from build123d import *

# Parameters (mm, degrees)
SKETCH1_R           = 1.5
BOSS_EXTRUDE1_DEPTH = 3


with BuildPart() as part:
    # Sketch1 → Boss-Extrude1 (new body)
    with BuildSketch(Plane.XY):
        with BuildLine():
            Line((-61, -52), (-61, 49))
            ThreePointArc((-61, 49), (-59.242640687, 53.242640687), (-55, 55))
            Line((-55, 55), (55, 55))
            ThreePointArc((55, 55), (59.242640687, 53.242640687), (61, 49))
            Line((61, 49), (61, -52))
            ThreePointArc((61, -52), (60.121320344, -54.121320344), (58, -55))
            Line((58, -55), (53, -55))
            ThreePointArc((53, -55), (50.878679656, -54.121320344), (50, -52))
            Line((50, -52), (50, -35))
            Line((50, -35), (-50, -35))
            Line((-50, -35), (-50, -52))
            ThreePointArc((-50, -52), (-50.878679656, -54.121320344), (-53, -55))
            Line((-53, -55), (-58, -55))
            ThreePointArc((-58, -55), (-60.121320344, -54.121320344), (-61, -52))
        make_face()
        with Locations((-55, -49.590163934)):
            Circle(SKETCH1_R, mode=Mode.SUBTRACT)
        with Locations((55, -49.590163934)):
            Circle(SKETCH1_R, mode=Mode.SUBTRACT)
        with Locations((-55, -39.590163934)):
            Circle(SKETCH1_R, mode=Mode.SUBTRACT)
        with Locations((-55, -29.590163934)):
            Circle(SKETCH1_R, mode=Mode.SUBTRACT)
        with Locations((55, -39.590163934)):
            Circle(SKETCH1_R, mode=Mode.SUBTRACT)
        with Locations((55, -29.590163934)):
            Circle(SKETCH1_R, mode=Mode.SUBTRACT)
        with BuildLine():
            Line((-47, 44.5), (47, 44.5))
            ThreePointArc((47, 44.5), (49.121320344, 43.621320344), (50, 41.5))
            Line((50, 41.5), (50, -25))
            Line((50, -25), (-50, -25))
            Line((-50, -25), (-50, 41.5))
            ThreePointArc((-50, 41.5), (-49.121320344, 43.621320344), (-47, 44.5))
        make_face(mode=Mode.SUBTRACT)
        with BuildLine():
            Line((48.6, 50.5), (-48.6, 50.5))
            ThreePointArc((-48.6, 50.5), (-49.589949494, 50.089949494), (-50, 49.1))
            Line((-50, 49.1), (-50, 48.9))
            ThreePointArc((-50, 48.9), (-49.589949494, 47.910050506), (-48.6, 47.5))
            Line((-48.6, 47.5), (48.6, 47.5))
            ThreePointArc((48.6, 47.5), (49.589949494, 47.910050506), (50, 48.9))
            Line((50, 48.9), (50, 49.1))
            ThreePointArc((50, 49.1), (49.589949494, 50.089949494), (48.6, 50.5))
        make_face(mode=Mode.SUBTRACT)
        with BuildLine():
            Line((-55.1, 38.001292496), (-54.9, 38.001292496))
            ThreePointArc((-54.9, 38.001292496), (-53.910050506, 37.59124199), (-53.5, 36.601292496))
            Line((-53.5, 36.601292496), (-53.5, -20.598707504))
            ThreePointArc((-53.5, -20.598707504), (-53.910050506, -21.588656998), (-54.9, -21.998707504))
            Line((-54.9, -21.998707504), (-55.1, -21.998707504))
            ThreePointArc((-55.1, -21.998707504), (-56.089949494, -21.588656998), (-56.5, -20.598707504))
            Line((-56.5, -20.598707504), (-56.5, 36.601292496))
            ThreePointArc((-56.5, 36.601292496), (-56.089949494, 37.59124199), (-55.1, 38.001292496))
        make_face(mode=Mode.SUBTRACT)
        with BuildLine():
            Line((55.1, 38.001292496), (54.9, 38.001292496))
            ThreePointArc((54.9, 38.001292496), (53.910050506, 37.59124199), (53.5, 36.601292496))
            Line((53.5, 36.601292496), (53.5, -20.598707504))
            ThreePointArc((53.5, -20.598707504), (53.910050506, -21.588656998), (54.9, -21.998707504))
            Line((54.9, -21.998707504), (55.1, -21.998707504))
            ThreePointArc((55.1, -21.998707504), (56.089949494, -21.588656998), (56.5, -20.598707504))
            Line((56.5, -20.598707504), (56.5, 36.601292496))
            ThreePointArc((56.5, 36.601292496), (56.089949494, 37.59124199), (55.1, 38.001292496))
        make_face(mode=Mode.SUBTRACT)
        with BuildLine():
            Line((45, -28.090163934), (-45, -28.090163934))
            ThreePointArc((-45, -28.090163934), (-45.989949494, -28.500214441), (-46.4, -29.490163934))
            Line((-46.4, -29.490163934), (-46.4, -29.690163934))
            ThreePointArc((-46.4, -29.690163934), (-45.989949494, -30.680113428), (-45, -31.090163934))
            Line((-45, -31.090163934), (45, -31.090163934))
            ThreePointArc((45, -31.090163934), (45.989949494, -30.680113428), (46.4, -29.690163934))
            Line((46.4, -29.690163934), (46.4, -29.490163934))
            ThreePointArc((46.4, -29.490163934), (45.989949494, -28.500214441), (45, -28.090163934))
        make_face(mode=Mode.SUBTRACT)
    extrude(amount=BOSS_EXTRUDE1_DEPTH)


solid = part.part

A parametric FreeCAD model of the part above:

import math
import FreeCAD as App
import Part
import Sketcher
from FreeCAD import Vector
Q = App.Units.Quantity

doc = App.newDocument("Part")
body = doc.addObject("PartDesign::Body", "Body")

# Sketch on XY plane
sketch1 = body.newObject("Sketcher::SketchObject", "Sketch")
sketch1.AttachmentSupport = (doc.getObject("XY_Plane"), [""])
sketch1.MapMode = "FlatFace"
sketch1.addGeometry(Part.LineSegment(Vector(-61, 49, 0), Vector(-61, -52, 0)), False)
sketch1.addGeometry(Part.ArcOfCircle(Part.Circle(Vector(-58, -52, 0), Vector(0, 0, 1), 3), math.radians(180), math.radians(270)), False)
sketch1.addGeometry(Part.LineSegment(Vector(-58, -55, 0), Vector(-53, -55, 0)), False)
sketch1.addGeometry(Part.ArcOfCircle(Part.Circle(Vector(-53, -52, 0), Vector(0, 0, 1), 3), math.radians(-90), math.radians(0)), False)
sketch1.addGeometry(Part.LineSegment(Vector(-50, -52, 0), Vector(-50, -35, 0)), False)
sketch1.addGeometry(Part.LineSegment(Vector(-50, -35, 0), Vector(50, -35, 0)), False)
sketch1.addGeometry(Part.LineSegment(Vector(50, -35, 0), Vector(50, -52, 0)), False)
sketch1.addGeometry(Part.ArcOfCircle(Part.Circle(Vector(53, -52, 0), Vector(0, 0, 1), 3), math.radians(180), math.radians(270)), False)
sketch1.addGeometry(Part.LineSegment(Vector(53, -55, 0), Vector(58, -55, 0)), False)
sketch1.addGeometry(Part.ArcOfCircle(Part.Circle(Vector(58, -52, 0), Vector(0, 0, 1), 3), math.radians(-90), math.radians(0)), False)
sketch1.addGeometry(Part.LineSegment(Vector(61, -52, 0), Vector(61, 49, 0)), False)
sketch1.addGeometry(Part.ArcOfCircle(Part.Circle(Vector(55, 49, 0), Vector(0, 0, 1), 6), math.radians(0), math.radians(90)), False)
sketch1.addGeometry(Part.LineSegment(Vector(55, 55, 0), Vector(-55, 55, 0)), False)
sketch1.addGeometry(Part.ArcOfCircle(Part.Circle(Vector(-55, 49, 0), Vector(0, 0, 1), 6), math.radians(90), math.radians(180)), False)
sketch1.addGeometry(Part.Circle(Vector(55, -49.59, 0), Vector(0, 0, 1), 1.5), False)
sketch1.addGeometry(Part.Circle(Vector(55, -39.59, 0), Vector(0, 0, 1), 1.5), False)
sketch1.addGeometry(Part.Circle(Vector(55, -29.59, 0), Vector(0, 0, 1), 1.5), False)
sketch1.addGeometry(Part.ArcOfCircle(Part.Circle(Vector(45, -29.49, 0), Vector(0, 0, 1), 1.4), math.radians(0), math.radians(90)), False)
sketch1.addGeometry(Part.LineSegment(Vector(46.4, -29.49, 0), Vector(46.4, -29.69, 0)), False)
sketch1.addGeometry(Part.ArcOfCircle(Part.Circle(Vector(45, -29.69, 0), Vector(0, 0, 1), 1.4), math.radians(-90), math.radians(0)), False)
sketch1.addGeometry(Part.LineSegment(Vector(45, -31.09, 0), Vector(-45, -31.09, 0)), False)
sketch1.addGeometry(Part.ArcOfCircle(Part.Circle(Vector(-45, -29.69, 0), Vector(0, 0, 1), 1.4), math.radians(180), math.radians(270)), False)
sketch1.addGeometry(Part.LineSegment(Vector(-46.4, -29.69, 0), Vector(-46.4, -29.49, 0)), False)
sketch1.addGeometry(Part.ArcOfCircle(Part.Circle(Vector(-45, -29.49, 0), Vector(0, 0, 1), 1.4), math.radians(90), math.radians(180)), False)
sketch1.addGeometry(Part.LineSegment(Vector(-45, -28.09, 0), Vector(45, -28.09, 0)), False)
sketch1.addGeometry(Part.Circle(Vector(-55, -49.59, 0), Vector(0, 0, 1), 1.5), False)
sketch1.addGeometry(Part.Circle(Vector(-55, -39.59, 0), Vector(0, 0, 1), 1.5), False)
sketch1.addGeometry(Part.Circle(Vector(-55, -29.59, 0), Vector(0, 0, 1), 1.5), False)
sketch1.addGeometry(Part.ArcOfCircle(Part.Circle(Vector(55.1, 36.6, 0), Vector(0, 0, 1), 1.4), math.radians(0), math.radians(90)), False)
sketch1.addGeometry(Part.LineSegment(Vector(56.5, 36.6, 0), Vector(56.5, -20.6, 0)), False)
sketch1.addGeometry(Part.ArcOfCircle(Part.Circle(Vector(55.1, -20.6, 0), Vector(0, 0, 1), 1.4), math.radians(-90), math.radians(0)), False)
sketch1.addGeometry(Part.LineSegment(Vector(55.1, -22, 0), Vector(54.9, -22, 0)), False)
sketch1.addGeometry(Part.ArcOfCircle(Part.Circle(Vector(54.9, -20.6, 0), Vector(0, 0, 1), 1.4), math.radians(180), math.radians(270)), False)
sketch1.addGeometry(Part.LineSegment(Vector(53.5, -20.6, 0), Vector(53.5, 36.6, 0)), False)
sketch1.addGeometry(Part.ArcOfCircle(Part.Circle(Vector(54.9, 36.6, 0), Vector(0, 0, 1), 1.4), math.radians(90), math.radians(180)), False)
sketch1.addGeometry(Part.LineSegment(Vector(54.9, 38, 0), Vector(55.1, 38, 0)), False)
sketch1.addGeometry(Part.LineSegment(Vector(-47, 44.5, 0), Vector(47, 44.5, 0)), False)
sketch1.addGeometry(Part.ArcOfCircle(Part.Circle(Vector(47, 41.5, 0), Vector(0, 0, 1), 3), math.radians(0), math.radians(90)), False)
sketch1.addGeometry(Part.LineSegment(Vector(50, 41.5, 0), Vector(50, -25, 0)), False)
sketch1.addGeometry(Part.LineSegment(Vector(50, -25, 0), Vector(-50, -25, 0)), False)
sketch1.addGeometry(Part.LineSegment(Vector(-50, -25, 0), Vector(-50, 41.5, 0)), False)
sketch1.addGeometry(Part.ArcOfCircle(Part.Circle(Vector(-47, 41.5, 0), Vector(0, 0, 1), 3), math.radians(90), math.radians(180)), False)
sketch1.addGeometry(Part.LineSegment(Vector(-55.1, 38, 0), Vector(-54.9, 38, 0)), False)
sketch1.addGeometry(Part.ArcOfCircle(Part.Circle(Vector(-54.9, 36.6, 0), Vector(0, 0, 1), 1.4), math.radians(0), math.radians(90)), False)
sketch1.addGeometry(Part.LineSegment(Vector(-53.5, 36.6, 0), Vector(-53.5, -20.6, 0)), False)
sketch1.addGeometry(Part.ArcOfCircle(Part.Circle(Vector(-54.9, -20.6, 0), Vector(0, 0, 1), 1.4), math.radians(-90), math.radians(0)), False)
sketch1.addGeometry(Part.LineSegment(Vector(-54.9, -22, 0), Vector(-55.1, -22, 0)), False)
sketch1.addGeometry(Part.ArcOfCircle(Part.Circle(Vector(-55.1, -20.6, 0), Vector(0, 0, 1), 1.4), math.radians(180), math.radians(270)), False)
sketch1.addGeometry(Part.LineSegment(Vector(-56.5, -20.6, 0), Vector(-56.5, 36.6, 0)), False)
sketch1.addGeometry(Part.ArcOfCircle(Part.Circle(Vector(-55.1, 36.6, 0), Vector(0, 0, 1), 1.4), math.radians(90), math.radians(180)), False)
sketch1.addGeometry(Part.ArcOfCircle(Part.Circle(Vector(48.6, 49.1, 0), Vector(0, 0, 1), 1.4), math.radians(0), math.radians(90)), False)
sketch1.addGeometry(Part.LineSegment(Vector(50, 49.1, 0), Vector(50, 48.9, 0)), False)
sketch1.addGeometry(Part.ArcOfCircle(Part.Circle(Vector(48.6, 48.9, 0), Vector(0, 0, 1), 1.4), math.radians(-90), math.radians(0)), False)
sketch1.addGeometry(Part.LineSegment(Vector(48.6, 47.5, 0), Vector(-48.6, 47.5, 0)), False)
sketch1.addGeometry(Part.ArcOfCircle(Part.Circle(Vector(-48.6, 48.9, 0), Vector(0, 0, 1), 1.4), math.radians(180), math.radians(270)), False)
sketch1.addGeometry(Part.LineSegment(Vector(-50, 48.9, 0), Vector(-50, 49.1, 0)), False)
sketch1.addGeometry(Part.ArcOfCircle(Part.Circle(Vector(-48.6, 49.1, 0), Vector(0, 0, 1), 1.4), math.radians(90), math.radians(180)), False)
sketch1.addGeometry(Part.LineSegment(Vector(-48.6, 50.5, 0), Vector(48.6, 50.5, 0)), False)
sketch1.addConstraint(Sketcher.Constraint("Tangent", 0, 2, 1, 1))
sketch1.addConstraint(Sketcher.Constraint("Tangent", 1, 2, 2, 1))
sketch1.addConstraint(Sketcher.Constraint("Tangent", 2, 2, 3, 1))
sketch1.addConstraint(Sketcher.Constraint("Tangent", 3, 2, 4, 1))
sketch1.addConstraint(Sketcher.Constraint("Coincident", 4, 2, 5, 1))
sketch1.addConstraint(Sketcher.Constraint("Coincident", 5, 2, 6, 1))
sketch1.addConstraint(Sketcher.Constraint("Tangent", 6, 2, 7, 1))
sketch1.addConstraint(Sketcher.Constraint("Tangent", 7, 2, 8, 1))
sketch1.addConstraint(Sketcher.Constraint("Tangent", 8, 2, 9, 1))
sketch1.addConstraint(Sketcher.Constraint("Tangent", 9, 2, 10, 1))
sketch1.addConstraint(Sketcher.Constraint("Tangent", 10, 2, 11, 1))
sketch1.addConstraint(Sketcher.Constraint("Tangent", 11, 2, 12, 1))
sketch1.addConstraint(Sketcher.Constraint("Tangent", 12, 2, 13, 1))
sketch1.addConstraint(Sketcher.Constraint("Tangent", 13, 2, 0, 1))
sketch1.addConstraint(Sketcher.Constraint("Tangent", 17, 1, 18, 1))
sketch1.addConstraint(Sketcher.Constraint("Tangent", 18, 2, 19, 2))
sketch1.addConstraint(Sketcher.Constraint("Tangent", 19, 1, 20, 1))
sketch1.addConstraint(Sketcher.Constraint("Tangent", 20, 2, 21, 2))
sketch1.addConstraint(Sketcher.Constraint("Tangent", 21, 1, 22, 1))
sketch1.addConstraint(Sketcher.Constraint("Tangent", 22, 2, 23, 2))
sketch1.addConstraint(Sketcher.Constraint("Tangent", 23, 1, 24, 1))
sketch1.addConstraint(Sketcher.Constraint("Tangent", 24, 2, 17, 2))
sketch1.addConstraint(Sketcher.Constraint("Tangent", 28, 1, 29, 1))
sketch1.addConstraint(Sketcher.Constraint("Tangent", 29, 2, 30, 2))
sketch1.addConstraint(Sketcher.Constraint("Tangent", 30, 1, 31, 1))
sketch1.addConstraint(Sketcher.Constraint("Tangent", 31, 2, 32, 2))
sketch1.addConstraint(Sketcher.Constraint("Tangent", 32, 1, 33, 1))
sketch1.addConstraint(Sketcher.Constraint("Tangent", 33, 2, 34, 2))
sketch1.addConstraint(Sketcher.Constraint("Tangent", 34, 1, 35, 1))
sketch1.addConstraint(Sketcher.Constraint("Tangent", 35, 2, 28, 2))
sketch1.addConstraint(Sketcher.Constraint("Tangent", 36, 2, 37, 2))
sketch1.addConstraint(Sketcher.Constraint("Tangent", 37, 1, 38, 1))
sketch1.addConstraint(Sketcher.Constraint("Coincident", 38, 2, 39, 1))
sketch1.addConstraint(Sketcher.Constraint("Coincident", 39, 2, 40, 1))
sketch1.addConstraint(Sketcher.Constraint("Tangent", 40, 2, 41, 2))
sketch1.addConstraint(Sketcher.Constraint("Tangent", 41, 1, 36, 1))
sketch1.addConstraint(Sketcher.Constraint("Tangent", 42, 2, 43, 2))
sketch1.addConstraint(Sketcher.Constraint("Tangent", 43, 1, 44, 1))
sketch1.addConstraint(Sketcher.Constraint("Tangent", 44, 2, 45, 2))
sketch1.addConstraint(Sketcher.Constraint("Tangent", 45, 1, 46, 1))
sketch1.addConstraint(Sketcher.Constraint("Tangent", 46, 2, 47, 2))
sketch1.addConstraint(Sketcher.Constraint("Tangent", 47, 1, 48, 1))
sketch1.addConstraint(Sketcher.Constraint("Tangent", 48, 2, 49, 2))
sketch1.addConstraint(Sketcher.Constraint("Tangent", 49, 1, 42, 1))
sketch1.addConstraint(Sketcher.Constraint("Tangent", 50, 1, 51, 1))
sketch1.addConstraint(Sketcher.Constraint("Tangent", 51, 2, 52, 2))
sketch1.addConstraint(Sketcher.Constraint("Tangent", 52, 1, 53, 1))
sketch1.addConstraint(Sketcher.Constraint("Tangent", 53, 2, 54, 2))
sketch1.addConstraint(Sketcher.Constraint("Tangent", 54, 1, 55, 1))
sketch1.addConstraint(Sketcher.Constraint("Tangent", 55, 2, 56, 2))
sketch1.addConstraint(Sketcher.Constraint("Tangent", 56, 1, 57, 1))
sketch1.addConstraint(Sketcher.Constraint("Tangent", 57, 2, 50, 2))
sketch1.addConstraint(Sketcher.Constraint("Vertical", 0))
sketch1.addConstraint(Sketcher.Constraint("Horizontal", 2))
sketch1.addConstraint(Sketcher.Constraint("Vertical", 4))
sketch1.addConstraint(Sketcher.Constraint("Horizontal", 5))
sketch1.addConstraint(Sketcher.Constraint("Vertical", 6))
sketch1.addConstraint(Sketcher.Constraint("Horizontal", 8))
sketch1.addConstraint(Sketcher.Constraint("Vertical", 10))
sketch1.addConstraint(Sketcher.Constraint("Horizontal", 12))
sketch1.addConstraint(Sketcher.Constraint("Vertical", 18))
sketch1.addConstraint(Sketcher.Constraint("Horizontal", 20))
sketch1.addConstraint(Sketcher.Constraint("Vertical", 22))
sketch1.addConstraint(Sketcher.Constraint("Horizontal", 24))
sketch1.addConstraint(Sketcher.Constraint("Vertical", 29))
sketch1.addConstraint(Sketcher.Constraint("Horizontal", 31))
sketch1.addConstraint(Sketcher.Constraint("Vertical", 33))
sketch1.addConstraint(Sketcher.Constraint("Horizontal", 35))
sketch1.addConstraint(Sketcher.Constraint("Horizontal", 36))
sketch1.addConstraint(Sketcher.Constraint("Vertical", 38))
sketch1.addConstraint(Sketcher.Constraint("Horizontal", 39))
sketch1.addConstraint(Sketcher.Constraint("Vertical", 40))
sketch1.addConstraint(Sketcher.Constraint("Horizontal", 42))
sketch1.addConstraint(Sketcher.Constraint("Vertical", 44))
sketch1.addConstraint(Sketcher.Constraint("Horizontal", 46))
sketch1.addConstraint(Sketcher.Constraint("Vertical", 48))
sketch1.addConstraint(Sketcher.Constraint("Vertical", 51))
sketch1.addConstraint(Sketcher.Constraint("Horizontal", 53))
sketch1.addConstraint(Sketcher.Constraint("Vertical", 55))
sketch1.addConstraint(Sketcher.Constraint("Horizontal", 57))
sketch1.addConstraint(Sketcher.Constraint("Equal", 1, 3))
sketch1.addConstraint(Sketcher.Constraint("Equal", 3, 7))
sketch1.addConstraint(Sketcher.Constraint("Equal", 7, 9))
sketch1.addConstraint(Sketcher.Constraint("Equal", 11, 13))
sketch1.addConstraint(Sketcher.Constraint("Equal", 14, 15))
sketch1.addConstraint(Sketcher.Constraint("Equal", 15, 16))
sketch1.addConstraint(Sketcher.Constraint("Equal", 17, 19))
sketch1.addConstraint(Sketcher.Constraint("Equal", 19, 21))
sketch1.addConstraint(Sketcher.Constraint("Equal", 21, 23))
sketch1.addConstraint(Sketcher.Constraint("Equal", 16, 25))
sketch1.addConstraint(Sketcher.Constraint("Equal", 25, 26))
sketch1.addConstraint(Sketcher.Constraint("Equal", 26, 27))
sketch1.addConstraint(Sketcher.Constraint("Equal", 23, 28))
sketch1.addConstraint(Sketcher.Constraint("Equal", 28, 30))
sketch1.addConstraint(Sketcher.Constraint("Equal", 30, 32))
sketch1.addConstraint(Sketcher.Constraint("Equal", 32, 34))
sketch1.addConstraint(Sketcher.Constraint("Equal", 9, 37))
sketch1.addConstraint(Sketcher.Constraint("Equal", 37, 41))
sketch1.addConstraint(Sketcher.Constraint("Equal", 34, 43))
sketch1.addConstraint(Sketcher.Constraint("Equal", 43, 45))
sketch1.addConstraint(Sketcher.Constraint("Equal", 45, 47))
sketch1.addConstraint(Sketcher.Constraint("Equal", 47, 49))
sketch1.addConstraint(Sketcher.Constraint("Equal", 49, 50))
sketch1.addConstraint(Sketcher.Constraint("Equal", 50, 52))
sketch1.addConstraint(Sketcher.Constraint("Equal", 52, 54))
sketch1.addConstraint(Sketcher.Constraint("Equal", 54, 56))
sketch1.addConstraint(Sketcher.Constraint("Symmetric", 3, 3, 7, 3, -2))
sketch1.addConstraint(Sketcher.Constraint("Symmetric", 14, 3, 25, 3, -2))
sketch1.addConstraint(Sketcher.Constraint("Symmetric", 15, 3, 26, 3, -2))
sketch1.addConstraint(Sketcher.Constraint("Symmetric", 16, 3, 27, 3, -2))
sketch1.addConstraint(Sketcher.Constraint("Symmetric", 34, 3, 43, 3, -2))
sketch1.addConstraint(Sketcher.Constraint("Symmetric", 30, 3, 47, 3, -2))
sketch1.addConstraint(Sketcher.Constraint("Vertical", 11, 3, 14, 3))
sketch1.addConstraint(Sketcher.Constraint("Vertical", 14, 3, 15, 3))
sketch1.addConstraint(Sketcher.Constraint("Vertical", 15, 3, 16, 3))
sketch1.addConstraint(Sketcher.Constraint("Vertical", 13, 3, 25, 3))
sketch1.addConstraint(Sketcher.Constraint("Vertical", 6, 2, 37, 1))
sketch1.addConstraint(Sketcher.Constraint("Vertical", 4, 2, 39, 2))
sketch1.addConstraint(Sketcher.Constraint("Vertical", 38, 2, 50, 1))
sketch1.addConstraint(Sketcher.Constraint("Vertical", 40, 2, 54, 1))
sketch1.addConstraint(Sketcher.Constraint("Equal", 46, 18))
sketch1.addConstraint(Sketcher.Constraint("Equal", 22, 51))
sketch1.addConstraint(Sketcher.Constraint("Diameter", 14, Q("3 mm")))
sketch1.addConstraint(Sketcher.Constraint("Radius", 1, Q("3 mm")))
sketch1.addConstraint(Sketcher.Constraint("Radius", 11, Q("6 mm")))
sketch1.addConstraint(Sketcher.Constraint("Radius", 17, Q("1.4 mm")))
sketch1.addConstraint(Sketcher.Constraint("DistanceX", 2, 1, 2, 2, Q("5 mm")))
sketch1.addConstraint(Sketcher.Constraint("DistanceX", 5, 1, 5, 2, Q("100 mm")))
sketch1.addConstraint(Sketcher.Constraint("DistanceX", 20, 2, 20, 1, Q("90 mm")))
sketch1.addConstraint(Sketcher.Constraint("DistanceY", 0, 2, 0, 1, Q("101 mm")))
sketch1.addConstraint(Sketcher.Constraint("DistanceY", 4, 1, 4, 2, Q("17 mm")))
sketch1.addConstraint(Sketcher.Constraint("DistanceX", 31, 2, 31, 1, Q("0.2 mm")))
sketch1.addConstraint(Sketcher.Constraint("DistanceY", 29, 2, 29, 1, Q("57.2 mm")))
sketch1.addConstraint(Sketcher.Constraint("DistanceY", 38, 2, 38, 1, Q("66.5 mm")))
sketch1.addConstraint(Sketcher.Constraint("DistanceY", 1, 3, -1, 1, Q("52 mm")))
sketch1.addConstraint(Sketcher.Constraint("DistanceX", -1, 1, 17, 3, Q("45 mm")))
sketch1.addConstraint(Sketcher.Constraint("DistanceY", 38, 2, -1, 1, Q("25 mm")))
sketch1.addConstraint(Sketcher.Constraint("DistanceX", -1, 1, 28, 3, Q("55.1 mm")))
sketch1.addConstraint(Sketcher.Constraint("DistanceY", -1, 1, 50, 3, Q("49.1 mm")))
sketch1.addConstraint(Sketcher.Constraint("DistanceY", 14, 3, -1, 1, Q("49.590164 mm")))
sketch1.addConstraint(Sketcher.Constraint("DistanceY", 15, 3, -1, 1, Q("39.590164 mm")))
sketch1.addConstraint(Sketcher.Constraint("DistanceY", 16, 3, -1, 1, Q("29.590164 mm")))
sketch1.addConstraint(Sketcher.Constraint("DistanceY", 17, 3, -1, 1, Q("29.490164 mm")))
sketch1.addConstraint(Sketcher.Constraint("DistanceY", -1, 1, 28, 3, Q("36.601292 mm")))
pad1 = body.newObject("PartDesign::Pad", "Pad")
pad1.Profile = sketch1
pad1.Length = 3

doc.recompute()
